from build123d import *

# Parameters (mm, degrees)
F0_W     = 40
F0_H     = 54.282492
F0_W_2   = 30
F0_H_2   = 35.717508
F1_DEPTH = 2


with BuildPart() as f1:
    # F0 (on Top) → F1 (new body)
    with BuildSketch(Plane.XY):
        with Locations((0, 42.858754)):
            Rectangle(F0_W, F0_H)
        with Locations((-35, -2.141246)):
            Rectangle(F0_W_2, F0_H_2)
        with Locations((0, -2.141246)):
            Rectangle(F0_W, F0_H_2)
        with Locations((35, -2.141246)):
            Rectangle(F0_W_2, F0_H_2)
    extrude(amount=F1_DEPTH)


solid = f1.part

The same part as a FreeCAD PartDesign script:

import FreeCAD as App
import Part
import Sketcher

V = App.Vector
Q = App.Units.Quantity

doc = App.newDocument("Part")
params = doc.addObject("Spreadsheet::Sheet", "Params")
for row, (alias, value) in enumerate([
    ("sketch1_width", "30 mm"),
    ("sketch1_width2", "100 mm"),
    ("pad1_length", "2 mm"),
], start=1):
    params.set(f"A{row}", alias)
    params.set(f"B{row}", "=" + value)
    params.setAlias(f"B{row}", alias)

body = doc.addObject("PartDesign::Body", "Body")

# Sketch on XY plane
sketch1 = doc.addObject("Sketcher::SketchObject", "Sketch")
body.addObject(sketch1)
sketch1.AttachmentSupport = (doc.XY_Plane, [""])
sketch1.MapMode = "FlatFace"
sketch1.addGeometry(Part.LineSegment(V(-20, 70, 0), V(-20, 16, 0)), False)
sketch1.addGeometry(Part.LineSegment(V(-20, 16, 0), V(-50, 16, 0)), False)
sketch1.addGeometry(Part.LineSegment(V(-50, 16, 0), V(-50, -20, 0)), False)
sketch1.addGeometry(Part.LineSegment(V(-50, -20, 0), V(50, -20, 0)), False)
sketch1.addGeometry(Part.LineSegment(V(50, -20, 0), V(50, 16, 0)), False)
sketch1.addGeometry(Part.LineSegment(V(50, 16, 0), V(20, 16, 0)), False)
sketch1.addGeometry(Part.LineSegment(V(20, 16, 0), V(20, 70, 0)), False)
sketch1.addGeometry(Part.LineSegment(V(20, 70, 0), V(-20, 70, 0)), False)
sketch1.addConstraint(Sketcher.Constraint("Coincident", 0, 2, 1, 1))
sketch1.addConstraint(Sketcher.Constraint("Coincident", 1, 2, 2, 1))
sketch1.addConstraint(Sketcher.Constraint("Coincident", 2, 2, 3, 1))
sketch1.addConstraint(Sketcher.Constraint("Coincident", 3, 2, 4, 1))
sketch1.addConstraint(Sketcher.Constraint("Coincident", 4, 2, 5, 1))
sketch1.addConstraint(Sketcher.Constraint("Coincident", 5, 2, 6, 1))
sketch1.addConstraint(Sketcher.Constraint("Coincident", 6, 2, 7, 1))
sketch1.addConstraint(Sketcher.Constraint("Coincident", 7, 2, 0, 1))
sketch1.addConstraint(Sketcher.Constraint("Vertical", 0))
sketch1.addConstraint(Sketcher.Constraint("Horizontal", 1))
sketch1.addConstraint(Sketcher.Constraint("Vertical", 2))
sketch1.addConstraint(Sketcher.Constraint("Horizontal", 3))
sketch1.addConstraint(Sketcher.Constraint("Vertical", 4))
sketch1.addConstraint(Sketcher.Constraint("Horizontal", 5))
sketch1.addConstraint(Sketcher.Constraint("Vertical", 6))
sketch1.addConstraint(Sketcher.Constraint("Horizontal", 7))
sketch1.addConstraint(Sketcher.Constraint("Symmetric", 1, 2, 4, 2, -2))
sketch1.addConstraint(Sketcher.Constraint("Equal", 1, 5))
sketch1.addConstraint(Sketcher.Constraint("DistanceX", 1, 2, 1, 1, Q("30 mm")))
sketch1.addConstraint(Sketcher.Constraint("DistanceX", 3, 1, 3, 2, Q("100 mm")))
sketch1.addConstraint(Sketcher.Constraint("DistanceY", 2, 2, -1, 1, Q("20 mm")))
sketch1.addConstraint(Sketcher.Constraint("DistanceY", -1, 1, 6, 2, Q("70 mm")))
sketch1.addConstraint(Sketcher.Constraint("DistanceY", 0, 2, 0, 1, Q("54.282492 mm")))
sketch1.setExpression("Constraints[18]", "Params.sketch1_width")
sketch1.setExpression("Constraints[19]", "Params.sketch1_width2")
pad1 = doc.addObject("PartDesign::Pad", "Pad")
body.addObject(pad1)
pad1.Profile = sketch1
pad1.setExpression("Length", "Params.pad1_length")

doc.recompute()
